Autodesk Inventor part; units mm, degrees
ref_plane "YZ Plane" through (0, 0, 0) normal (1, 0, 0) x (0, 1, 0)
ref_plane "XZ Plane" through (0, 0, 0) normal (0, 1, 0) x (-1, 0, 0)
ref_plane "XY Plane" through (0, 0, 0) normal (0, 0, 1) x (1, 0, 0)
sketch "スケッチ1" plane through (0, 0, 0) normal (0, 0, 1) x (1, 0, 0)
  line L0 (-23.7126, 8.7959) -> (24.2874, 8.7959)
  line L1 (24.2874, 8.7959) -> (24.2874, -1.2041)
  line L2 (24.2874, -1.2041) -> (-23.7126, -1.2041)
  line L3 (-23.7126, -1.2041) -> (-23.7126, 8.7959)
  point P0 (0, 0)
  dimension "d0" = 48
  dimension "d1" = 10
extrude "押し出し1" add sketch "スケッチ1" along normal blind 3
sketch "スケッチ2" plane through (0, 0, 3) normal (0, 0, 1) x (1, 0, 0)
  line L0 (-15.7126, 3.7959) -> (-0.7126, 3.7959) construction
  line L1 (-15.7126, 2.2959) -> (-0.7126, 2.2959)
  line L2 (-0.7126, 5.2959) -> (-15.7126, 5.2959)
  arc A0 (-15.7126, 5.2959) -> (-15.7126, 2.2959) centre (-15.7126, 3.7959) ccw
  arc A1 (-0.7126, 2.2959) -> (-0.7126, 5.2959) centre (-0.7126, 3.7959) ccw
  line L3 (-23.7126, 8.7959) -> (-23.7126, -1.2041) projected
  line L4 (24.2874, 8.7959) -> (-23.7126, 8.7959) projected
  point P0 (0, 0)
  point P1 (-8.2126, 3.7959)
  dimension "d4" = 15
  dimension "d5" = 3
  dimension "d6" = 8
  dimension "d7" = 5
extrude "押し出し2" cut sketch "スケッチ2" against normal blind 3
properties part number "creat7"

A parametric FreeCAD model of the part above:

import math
import FreeCAD as App
import Part
import Sketcher

V = App.Vector
Q = App.Units.Quantity


def add_polygon(sketch, points):
    """Adds a closed chain of lines whose ends are joined by coincident constraints."""
    first, n = sketch.GeometryCount, len(points)
    for a, b in zip(points, points[1:] + points[:1]):
        sketch.addGeometry(Part.LineSegment(App.Vector(*a, 0), App.Vector(*b, 0)), False)
    for i in range(n):
        sketch.addConstraint(Sketcher.Constraint("Coincident", first + i, 2, first + (i + 1) % n, 1))

doc = App.newDocument("Part")
body = doc.addObject("PartDesign::Body", "Body")

# Sketch on XY plane
sketch1 = body.newObject("Sketcher::SketchObject", "Sketch")
sketch1.AttachmentSupport = (doc.getObject("XY_Plane"), [""])
sketch1.MapMode = "FlatFace"
add_polygon(sketch1, [(24, 9), (-24, 9), (-24, -1), (24, -1)])  # lines 0-3
sketch1.addConstraint(Sketcher.Constraint("Horizontal", 0))
sketch1.addConstraint(Sketcher.Constraint("Vertical", 1))
sketch1.addConstraint(Sketcher.Constraint("Horizontal", 2))
sketch1.addConstraint(Sketcher.Constraint("Vertical", 3))
sketch1.addConstraint(Sketcher.Constraint("DistanceX", 0, 2, 0, 1, Q("48 mm")))
sketch1.addConstraint(Sketcher.Constraint("DistanceY", 1, 2, 1, 1, Q("10 mm")))
sketch1.addConstraint(Sketcher.Constraint("DistanceY", -1, 1, 0, 2, Q("8.796 mm")))
sketch1.addConstraint(Sketcher.Constraint("DistanceX", 0, 2, -1, 1, Q("23.7126 mm")))
pad1 = body.newObject("PartDesign::Pad", "Pad")
pad1.Profile = sketch1
pad1.Length = 3

# Sketch on XY plane
sketch2 = body.newObject("Sketcher::SketchObject", "Sketch001")
sketch2.AttachmentSupport = (doc.getObject("XY_Plane"), [""])
sketch2.MapMode = "FlatFace"
sketch2.AttachmentOffset = App.Placement(V(0, 0, 3), App.Rotation())
sketch2.addGeometry(Part.ArcOfCircle(Part.Circle(V(-15.7, 3.8, 0), V(0, 0, 1), 1.5), math.radians(90), math.radians(270)), False)
sketch2.addGeometry(Part.LineSegment(V(-15.7, 2.3, 0), V(-0.7, 2.3, 0)), False)
sketch2.addGeometry(Part.ArcOfCircle(Part.Circle(V(-0.7, 3.8, 0), V(0, 0, 1), 1.5), math.radians(-90), math.radians(90)), False)
sketch2.addGeometry(Part.LineSegment(V(-0.7, 5.3, 0), V(-15.7, 5.3, 0)), False)
sketch2.addConstraint(Sketcher.Constraint("Tangent", 0, 2, 1, 1))
sketch2.addConstraint(Sketcher.Constraint("Tangent", 1, 2, 2, 1))
sketch2.addConstraint(Sketcher.Constraint("Tangent", 2, 2, 3, 1))
sketch2.addConstraint(Sketcher.Constraint("Tangent", 3, 2, 0, 1))
sketch2.addConstraint(Sketcher.Constraint("Horizontal", 1))
sketch2.addConstraint(Sketcher.Constraint("Horizontal", 3))
sketch2.addConstraint(Sketcher.Constraint("Radius", 0, Q("1.5 mm")))
sketch2.addConstraint(Sketcher.Constraint("DistanceX", 1, 1, 1, 2, Q("15 mm")))
sketch2.addConstraint(Sketcher.Constraint("DistanceY", -1, 1, 0, 3, Q("3.796 mm")))
sketch2.addConstraint(Sketcher.Constraint("DistanceX", 0, 3, -1, 1, Q("15.7126 mm")))
pocket1 = body.newObject("PartDesign::Pocket", "Pocket")
pocket1.Profile = sketch2
pocket1.Length = 3

doc.recompute()
